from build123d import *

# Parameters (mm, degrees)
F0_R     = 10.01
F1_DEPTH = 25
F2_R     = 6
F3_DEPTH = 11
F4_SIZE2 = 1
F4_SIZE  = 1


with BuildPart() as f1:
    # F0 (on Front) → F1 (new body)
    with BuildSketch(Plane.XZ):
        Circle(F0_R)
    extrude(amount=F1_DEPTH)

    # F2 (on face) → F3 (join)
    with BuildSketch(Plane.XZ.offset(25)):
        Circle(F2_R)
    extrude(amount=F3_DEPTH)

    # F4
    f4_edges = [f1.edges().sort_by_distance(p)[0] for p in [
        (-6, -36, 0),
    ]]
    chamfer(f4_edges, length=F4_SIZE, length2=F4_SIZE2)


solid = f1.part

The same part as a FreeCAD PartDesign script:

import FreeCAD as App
import Part
import Sketcher
from FreeCAD import Vector


def edges_at(feature, points):
    """Names of the edges that pass closest to the given points."""
    edges = feature.Shape.Edges
    near = lambda p: min(range(len(edges)), key=lambda i: edges[i].distToShape(Part.Vertex(*p))[0])
    return sorted({f"Edge{near(p) + 1}" for p in points})

doc = App.newDocument("Part")
body = doc.addObject("PartDesign::Body", "Body")

# Sketch on XZ plane
sketch1 = body.newObject("Sketcher::SketchObject", "Sketch")
sketch1.AttachmentSupport = (doc.getObject("XZ_Plane"), [""])
sketch1.MapMode = "FlatFace"
sketch1.addGeometry(Part.Circle(Vector(0, 0, 0), Vector(0, 0, 1), 10.01), False)
sketch1.addConstraint([
    Sketcher.Constraint("Coincident", 0, 3, -1, 1),
    Sketcher.Constraint("Diameter", 0, 20.02),
])
pad1 = body.newObject("PartDesign::Pad", "Pad")
pad1.Profile = sketch1
pad1.Length = 25

# Sketch on XZ plane
sketch2 = body.newObject("Sketcher::SketchObject", "Sketch001")
sketch2.AttachmentSupport = (doc.getObject("XZ_Plane"), [""])
sketch2.MapMode = "FlatFace"
sketch2.AttachmentOffset = App.Placement(Vector(0, 0, 25), App.Rotation())
sketch2.addGeometry(Part.Circle(Vector(0, 0, 0), Vector(0, 0, 1), 6), False)
sketch2.addConstraint([
    Sketcher.Constraint("Coincident", 0, 3, -1, 1),
    Sketcher.Constraint("Diameter", 0, 12.0),
])
pad2 = body.newObject("PartDesign::Pad", "Pad001")
pad2.Profile = sketch2
pad2.Length = 11
doc.recompute()

chamfer = body.newObject("PartDesign::Chamfer", "Chamfer")
chamfer.Base = (pad2, edges_at(pad2, [(-6, -36, 0)]))
chamfer.ChamferType = "Two distances"
chamfer.Size = 1
chamfer.Size2 = 1

doc.recompute()
